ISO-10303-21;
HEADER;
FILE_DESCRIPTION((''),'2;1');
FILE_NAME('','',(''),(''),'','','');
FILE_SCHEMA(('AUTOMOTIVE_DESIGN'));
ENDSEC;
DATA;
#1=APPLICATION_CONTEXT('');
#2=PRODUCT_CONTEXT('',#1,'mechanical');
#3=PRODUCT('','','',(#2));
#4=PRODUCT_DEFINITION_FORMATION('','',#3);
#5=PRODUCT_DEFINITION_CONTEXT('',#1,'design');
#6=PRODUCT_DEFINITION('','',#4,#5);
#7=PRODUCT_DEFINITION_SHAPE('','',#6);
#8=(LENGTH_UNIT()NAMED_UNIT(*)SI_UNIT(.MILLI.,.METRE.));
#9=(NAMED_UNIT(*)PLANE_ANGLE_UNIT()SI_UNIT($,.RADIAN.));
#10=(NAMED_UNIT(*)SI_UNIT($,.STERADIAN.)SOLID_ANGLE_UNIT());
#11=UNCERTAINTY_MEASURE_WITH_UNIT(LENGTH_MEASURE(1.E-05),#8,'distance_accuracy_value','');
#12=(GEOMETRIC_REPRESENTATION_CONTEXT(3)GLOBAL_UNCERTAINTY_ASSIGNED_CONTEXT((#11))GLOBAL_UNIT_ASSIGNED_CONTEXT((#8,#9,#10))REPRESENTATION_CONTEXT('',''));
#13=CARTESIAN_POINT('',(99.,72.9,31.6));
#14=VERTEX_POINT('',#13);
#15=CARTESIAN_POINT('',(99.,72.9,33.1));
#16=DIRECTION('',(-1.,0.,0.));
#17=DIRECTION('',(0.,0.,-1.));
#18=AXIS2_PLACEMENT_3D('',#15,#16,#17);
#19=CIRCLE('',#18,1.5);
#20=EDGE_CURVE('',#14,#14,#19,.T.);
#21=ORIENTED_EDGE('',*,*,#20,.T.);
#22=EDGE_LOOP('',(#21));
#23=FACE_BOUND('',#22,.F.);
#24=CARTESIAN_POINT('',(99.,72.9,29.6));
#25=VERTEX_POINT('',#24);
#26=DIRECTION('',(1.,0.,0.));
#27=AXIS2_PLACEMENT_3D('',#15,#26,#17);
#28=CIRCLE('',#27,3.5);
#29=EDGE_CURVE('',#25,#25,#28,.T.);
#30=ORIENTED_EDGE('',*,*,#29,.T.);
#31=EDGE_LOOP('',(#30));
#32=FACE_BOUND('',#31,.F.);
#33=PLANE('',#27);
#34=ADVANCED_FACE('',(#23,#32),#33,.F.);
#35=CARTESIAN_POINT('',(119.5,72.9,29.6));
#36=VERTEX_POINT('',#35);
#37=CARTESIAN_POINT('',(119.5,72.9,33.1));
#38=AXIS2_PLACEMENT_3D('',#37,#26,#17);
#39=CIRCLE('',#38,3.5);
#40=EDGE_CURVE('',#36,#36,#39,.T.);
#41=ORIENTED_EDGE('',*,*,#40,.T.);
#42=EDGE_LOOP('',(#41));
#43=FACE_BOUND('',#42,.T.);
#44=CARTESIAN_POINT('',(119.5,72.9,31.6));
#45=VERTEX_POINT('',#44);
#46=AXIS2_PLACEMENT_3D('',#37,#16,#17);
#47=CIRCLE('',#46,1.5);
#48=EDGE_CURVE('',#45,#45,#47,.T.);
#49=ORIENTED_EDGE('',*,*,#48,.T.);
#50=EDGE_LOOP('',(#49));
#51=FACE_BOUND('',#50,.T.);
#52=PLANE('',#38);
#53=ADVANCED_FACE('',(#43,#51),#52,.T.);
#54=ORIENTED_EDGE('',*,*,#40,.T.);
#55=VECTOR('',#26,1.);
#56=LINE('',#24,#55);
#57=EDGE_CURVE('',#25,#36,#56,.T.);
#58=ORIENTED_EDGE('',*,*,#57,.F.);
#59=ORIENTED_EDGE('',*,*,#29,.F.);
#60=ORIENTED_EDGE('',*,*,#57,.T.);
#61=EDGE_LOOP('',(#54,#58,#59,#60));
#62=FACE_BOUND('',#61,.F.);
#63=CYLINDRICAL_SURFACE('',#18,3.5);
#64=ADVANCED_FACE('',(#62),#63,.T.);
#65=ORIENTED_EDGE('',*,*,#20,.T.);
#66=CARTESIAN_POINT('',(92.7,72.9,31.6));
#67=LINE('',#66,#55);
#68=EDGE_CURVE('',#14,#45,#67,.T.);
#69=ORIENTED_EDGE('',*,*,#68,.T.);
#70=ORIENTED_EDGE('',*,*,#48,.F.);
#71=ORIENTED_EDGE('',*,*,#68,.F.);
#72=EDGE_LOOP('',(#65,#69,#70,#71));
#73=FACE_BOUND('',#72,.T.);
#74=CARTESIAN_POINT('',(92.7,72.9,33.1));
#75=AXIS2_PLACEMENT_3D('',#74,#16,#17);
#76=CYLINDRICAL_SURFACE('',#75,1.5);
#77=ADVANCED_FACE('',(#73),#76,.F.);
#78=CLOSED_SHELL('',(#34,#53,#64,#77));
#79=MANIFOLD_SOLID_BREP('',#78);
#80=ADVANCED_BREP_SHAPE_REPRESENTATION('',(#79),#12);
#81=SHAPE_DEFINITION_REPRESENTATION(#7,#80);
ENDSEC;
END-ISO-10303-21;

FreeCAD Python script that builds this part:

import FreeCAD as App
import Part
import Sketcher

V = App.Vector
Q = App.Units.Quantity

doc = App.newDocument("Part")
params = doc.addObject("Spreadsheet::Sheet", "Params")
for row, (alias, value) in enumerate([
    ("sketch1_diameter", "3 mm"),
    ("pad1_length", "55 mm"),
    ("sketch2_diameter", "7 mm"),
    ("pad2_length", "20.5 mm"),
], start=1):
    params.set(f"A{row}", alias)
    params.set(f"B{row}", "=" + value)
    params.setAlias(f"B{row}", alias)

body = doc.addObject("PartDesign::Body", "Body")

# Sketch on YZ plane
sketch1 = doc.addObject("Sketcher::SketchObject", "Sketch")
body.addObject(sketch1)
sketch1.AttachmentSupport = (doc.YZ_Plane, [""])
sketch1.MapMode = "FlatFace"
sketch1.AttachmentOffset = App.Placement(V(0, 0, 92.7), App.Rotation())
sketch1.addGeometry(Part.Circle(V(72.9, 33.1, 0), V(0, 0, 1), 1.5), False)
sketch1.addConstraint([
    Sketcher.Constraint("Diameter", 0, Q("3 mm")),
    Sketcher.Constraint("DistanceX", -1, 1, 0, 3, Q("72.9 mm")),
    Sketcher.Constraint("DistanceY", -1, 1, 0, 3, Q("33.1 mm")),
])
sketch1.setExpression("Constraints[0]", "Params.sketch1_diameter")
pad1 = doc.addObject("PartDesign::Pad", "Pad")
body.addObject(pad1)
pad1.Profile = sketch1
pad1.setExpression("Length", "Params.pad1_length")
body2 = doc.addObject("PartDesign::Body", "Body001")

# Sketch on YZ plane
sketch2 = doc.addObject("Sketcher::SketchObject", "Sketch001")
body2.addObject(sketch2)
sketch2.AttachmentSupport = (doc.getObject("YZ_Plane001"), [""])
sketch2.MapMode = "FlatFace"
sketch2.AttachmentOffset = App.Placement(V(0, 0, 99), App.Rotation())
sketch2.addGeometry(Part.Circle(V(72.9, 33.1, 0), V(0, 0, 1), 3.5), False)
sketch2.addConstraint([
    Sketcher.Constraint("Diameter", 0, Q("7 mm")),
    Sketcher.Constraint("DistanceX", -1, 1, 0, 3, Q("72.9 mm")),
    Sketcher.Constraint("DistanceY", -1, 1, 0, 3, Q("33.1 mm")),
])
sketch2.setExpression("Constraints[0]", "Params.sketch2_diameter")
pad2 = doc.addObject("PartDesign::Pad", "Pad001")
body2.addObject(pad2)
pad2.Profile = sketch2
pad2.setExpression("Length", "Params.pad2_length")
doc.recompute()

boolean = doc.addObject("PartDesign::Boolean", "Boolean")
body2.addObject(boolean)
boolean.Type = "Cut"
boolean.addObjects([body])

doc.recompute()
